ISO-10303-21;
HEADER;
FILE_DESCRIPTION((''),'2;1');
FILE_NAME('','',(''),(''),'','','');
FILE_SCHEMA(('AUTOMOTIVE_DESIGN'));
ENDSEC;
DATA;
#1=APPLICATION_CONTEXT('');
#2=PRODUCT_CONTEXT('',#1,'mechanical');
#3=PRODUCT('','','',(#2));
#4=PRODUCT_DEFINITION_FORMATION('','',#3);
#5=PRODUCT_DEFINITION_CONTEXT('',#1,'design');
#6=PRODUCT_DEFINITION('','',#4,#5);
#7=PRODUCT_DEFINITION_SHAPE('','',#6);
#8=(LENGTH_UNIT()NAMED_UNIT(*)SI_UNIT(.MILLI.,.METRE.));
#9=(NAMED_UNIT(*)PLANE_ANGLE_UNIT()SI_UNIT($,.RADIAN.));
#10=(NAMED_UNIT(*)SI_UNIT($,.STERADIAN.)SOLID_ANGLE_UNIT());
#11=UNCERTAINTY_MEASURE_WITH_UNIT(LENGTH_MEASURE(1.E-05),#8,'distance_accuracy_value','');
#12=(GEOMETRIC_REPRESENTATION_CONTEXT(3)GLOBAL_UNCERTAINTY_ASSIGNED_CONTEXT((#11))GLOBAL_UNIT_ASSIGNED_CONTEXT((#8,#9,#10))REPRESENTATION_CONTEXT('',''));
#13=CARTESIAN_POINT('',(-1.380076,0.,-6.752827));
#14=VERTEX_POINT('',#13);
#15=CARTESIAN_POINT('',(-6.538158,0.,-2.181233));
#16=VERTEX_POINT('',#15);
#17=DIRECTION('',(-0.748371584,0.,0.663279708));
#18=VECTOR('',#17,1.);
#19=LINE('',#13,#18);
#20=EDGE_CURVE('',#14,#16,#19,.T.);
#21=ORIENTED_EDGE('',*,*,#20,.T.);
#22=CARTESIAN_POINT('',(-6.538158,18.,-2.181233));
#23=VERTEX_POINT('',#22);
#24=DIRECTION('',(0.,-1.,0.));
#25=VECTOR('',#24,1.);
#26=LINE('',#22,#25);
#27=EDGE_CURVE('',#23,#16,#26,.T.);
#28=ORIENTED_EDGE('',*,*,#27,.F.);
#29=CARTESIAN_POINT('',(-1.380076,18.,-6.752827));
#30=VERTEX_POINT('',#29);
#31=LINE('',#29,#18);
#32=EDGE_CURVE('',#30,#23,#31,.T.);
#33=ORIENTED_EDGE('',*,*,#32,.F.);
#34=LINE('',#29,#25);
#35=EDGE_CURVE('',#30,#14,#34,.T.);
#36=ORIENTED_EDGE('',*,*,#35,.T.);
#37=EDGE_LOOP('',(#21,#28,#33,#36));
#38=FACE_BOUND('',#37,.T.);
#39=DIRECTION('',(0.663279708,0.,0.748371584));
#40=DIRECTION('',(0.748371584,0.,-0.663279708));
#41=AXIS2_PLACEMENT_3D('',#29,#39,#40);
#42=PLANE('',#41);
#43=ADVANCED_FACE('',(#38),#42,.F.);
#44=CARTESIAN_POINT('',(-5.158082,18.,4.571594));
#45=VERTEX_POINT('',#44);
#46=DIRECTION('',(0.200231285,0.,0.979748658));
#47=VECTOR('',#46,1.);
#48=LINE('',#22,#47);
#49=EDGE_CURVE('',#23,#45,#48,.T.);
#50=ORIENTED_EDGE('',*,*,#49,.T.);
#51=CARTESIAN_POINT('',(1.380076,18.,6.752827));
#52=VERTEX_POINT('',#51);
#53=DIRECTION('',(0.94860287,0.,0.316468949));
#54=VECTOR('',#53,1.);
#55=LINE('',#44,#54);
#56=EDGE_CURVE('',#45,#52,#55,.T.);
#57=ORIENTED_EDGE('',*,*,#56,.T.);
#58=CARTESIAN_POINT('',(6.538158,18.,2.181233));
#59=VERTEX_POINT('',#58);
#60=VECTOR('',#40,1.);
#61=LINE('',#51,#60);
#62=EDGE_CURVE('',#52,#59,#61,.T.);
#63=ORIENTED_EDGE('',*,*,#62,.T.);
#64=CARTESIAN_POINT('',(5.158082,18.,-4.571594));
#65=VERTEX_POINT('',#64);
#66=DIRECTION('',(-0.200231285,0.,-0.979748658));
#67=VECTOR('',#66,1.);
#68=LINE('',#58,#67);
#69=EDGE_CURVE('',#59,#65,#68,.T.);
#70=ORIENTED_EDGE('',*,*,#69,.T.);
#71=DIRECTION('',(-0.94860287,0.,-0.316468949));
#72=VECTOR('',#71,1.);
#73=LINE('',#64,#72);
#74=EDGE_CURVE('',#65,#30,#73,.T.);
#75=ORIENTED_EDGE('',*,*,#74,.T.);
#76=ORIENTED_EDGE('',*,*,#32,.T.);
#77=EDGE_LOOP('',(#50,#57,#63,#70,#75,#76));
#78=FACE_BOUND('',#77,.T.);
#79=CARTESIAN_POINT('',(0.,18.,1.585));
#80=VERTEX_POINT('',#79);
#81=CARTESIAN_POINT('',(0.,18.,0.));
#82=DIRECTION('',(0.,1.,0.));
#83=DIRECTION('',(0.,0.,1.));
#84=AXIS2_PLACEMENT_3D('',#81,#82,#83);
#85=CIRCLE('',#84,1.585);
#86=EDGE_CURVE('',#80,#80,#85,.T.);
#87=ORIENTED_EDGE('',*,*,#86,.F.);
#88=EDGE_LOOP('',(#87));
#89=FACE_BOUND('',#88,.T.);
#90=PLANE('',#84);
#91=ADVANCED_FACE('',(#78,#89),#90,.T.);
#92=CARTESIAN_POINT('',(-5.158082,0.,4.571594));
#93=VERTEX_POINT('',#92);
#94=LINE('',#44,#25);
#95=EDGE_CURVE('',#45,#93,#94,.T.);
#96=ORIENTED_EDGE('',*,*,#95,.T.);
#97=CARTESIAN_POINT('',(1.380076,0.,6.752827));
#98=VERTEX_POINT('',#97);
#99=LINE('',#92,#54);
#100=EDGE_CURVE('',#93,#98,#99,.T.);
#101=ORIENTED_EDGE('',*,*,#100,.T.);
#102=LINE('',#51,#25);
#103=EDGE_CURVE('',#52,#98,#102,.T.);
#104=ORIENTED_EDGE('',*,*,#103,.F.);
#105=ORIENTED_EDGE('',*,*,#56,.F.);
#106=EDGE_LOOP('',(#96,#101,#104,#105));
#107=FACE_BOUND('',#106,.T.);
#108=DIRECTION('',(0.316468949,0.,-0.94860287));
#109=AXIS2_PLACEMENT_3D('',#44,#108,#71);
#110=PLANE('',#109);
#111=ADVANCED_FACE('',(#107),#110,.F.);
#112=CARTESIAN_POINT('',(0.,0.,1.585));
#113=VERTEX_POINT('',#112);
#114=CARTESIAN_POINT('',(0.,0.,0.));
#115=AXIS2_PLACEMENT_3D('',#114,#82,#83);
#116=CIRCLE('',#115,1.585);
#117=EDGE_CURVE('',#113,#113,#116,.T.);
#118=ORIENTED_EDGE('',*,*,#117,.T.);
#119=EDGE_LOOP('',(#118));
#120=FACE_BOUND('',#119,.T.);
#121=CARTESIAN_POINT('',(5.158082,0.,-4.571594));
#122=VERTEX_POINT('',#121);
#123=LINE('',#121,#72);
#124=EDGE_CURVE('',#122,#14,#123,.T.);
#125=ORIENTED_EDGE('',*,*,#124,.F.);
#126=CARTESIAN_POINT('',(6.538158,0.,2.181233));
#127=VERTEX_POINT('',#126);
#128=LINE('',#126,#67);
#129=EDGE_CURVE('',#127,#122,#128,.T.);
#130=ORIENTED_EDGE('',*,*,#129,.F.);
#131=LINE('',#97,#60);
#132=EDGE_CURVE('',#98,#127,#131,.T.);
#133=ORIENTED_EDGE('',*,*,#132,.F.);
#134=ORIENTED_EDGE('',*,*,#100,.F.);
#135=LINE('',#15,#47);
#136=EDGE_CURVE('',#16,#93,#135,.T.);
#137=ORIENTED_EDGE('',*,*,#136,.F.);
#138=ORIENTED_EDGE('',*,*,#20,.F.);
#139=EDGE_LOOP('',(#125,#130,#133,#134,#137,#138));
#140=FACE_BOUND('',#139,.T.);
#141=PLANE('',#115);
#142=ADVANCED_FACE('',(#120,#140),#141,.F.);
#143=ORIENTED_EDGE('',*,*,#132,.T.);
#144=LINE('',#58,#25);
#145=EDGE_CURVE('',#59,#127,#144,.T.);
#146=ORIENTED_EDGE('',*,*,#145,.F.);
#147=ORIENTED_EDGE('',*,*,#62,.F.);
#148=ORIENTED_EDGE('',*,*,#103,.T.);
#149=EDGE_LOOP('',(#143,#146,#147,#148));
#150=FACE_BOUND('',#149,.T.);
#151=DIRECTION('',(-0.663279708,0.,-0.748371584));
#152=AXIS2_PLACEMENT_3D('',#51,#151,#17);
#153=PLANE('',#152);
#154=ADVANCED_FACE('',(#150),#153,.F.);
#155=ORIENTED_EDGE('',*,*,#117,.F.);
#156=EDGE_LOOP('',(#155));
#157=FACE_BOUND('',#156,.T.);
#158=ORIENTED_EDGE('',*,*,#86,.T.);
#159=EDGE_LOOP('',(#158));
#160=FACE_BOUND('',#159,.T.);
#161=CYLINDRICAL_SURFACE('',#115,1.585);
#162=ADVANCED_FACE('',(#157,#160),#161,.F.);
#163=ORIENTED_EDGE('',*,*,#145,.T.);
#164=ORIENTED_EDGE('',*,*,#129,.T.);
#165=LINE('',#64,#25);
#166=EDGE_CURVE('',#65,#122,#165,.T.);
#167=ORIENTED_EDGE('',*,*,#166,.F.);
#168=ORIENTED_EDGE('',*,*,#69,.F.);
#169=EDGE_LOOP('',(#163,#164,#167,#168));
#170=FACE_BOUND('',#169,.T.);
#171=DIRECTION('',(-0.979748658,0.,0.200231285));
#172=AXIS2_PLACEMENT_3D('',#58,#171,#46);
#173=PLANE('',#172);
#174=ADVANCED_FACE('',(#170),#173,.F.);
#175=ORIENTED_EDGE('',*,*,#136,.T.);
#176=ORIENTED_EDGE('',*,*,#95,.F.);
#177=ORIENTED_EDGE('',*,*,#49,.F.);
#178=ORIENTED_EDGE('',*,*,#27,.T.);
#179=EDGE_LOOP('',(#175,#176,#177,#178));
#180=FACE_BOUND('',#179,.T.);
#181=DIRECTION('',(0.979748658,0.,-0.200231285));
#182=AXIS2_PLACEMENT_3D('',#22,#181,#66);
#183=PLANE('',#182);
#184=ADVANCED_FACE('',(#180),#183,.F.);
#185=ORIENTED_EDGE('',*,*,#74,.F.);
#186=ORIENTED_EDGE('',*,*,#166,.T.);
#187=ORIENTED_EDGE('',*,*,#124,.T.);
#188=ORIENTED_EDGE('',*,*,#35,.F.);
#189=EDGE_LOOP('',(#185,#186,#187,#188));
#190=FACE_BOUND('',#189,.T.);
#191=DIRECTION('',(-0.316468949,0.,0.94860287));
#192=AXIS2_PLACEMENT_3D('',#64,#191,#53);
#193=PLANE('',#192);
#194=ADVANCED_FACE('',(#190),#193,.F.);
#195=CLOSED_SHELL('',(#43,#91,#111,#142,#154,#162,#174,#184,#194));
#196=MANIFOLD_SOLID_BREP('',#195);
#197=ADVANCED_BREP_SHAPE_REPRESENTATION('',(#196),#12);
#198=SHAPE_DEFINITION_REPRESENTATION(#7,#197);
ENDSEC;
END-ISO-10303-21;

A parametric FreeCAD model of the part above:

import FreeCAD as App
import Part
import Sketcher


def add_polygon(sketch, points):
    """Adds a closed chain of lines whose ends are joined by coincident constraints."""
    first, n = sketch.GeometryCount, len(points)
    for a, b in zip(points, points[1:] + points[:1]):
        sketch.addGeometry(Part.LineSegment(App.Vector(*a, 0), App.Vector(*b, 0)), False)
    for i in range(n):
        sketch.addConstraint(Sketcher.Constraint("Coincident", first + i, 2, first + (i + 1) % n, 1))

doc = App.newDocument("Part")
body = doc.addObject("PartDesign::Body", "Body")

# Sketch on XZ plane
sketch1 = body.newObject("Sketcher::SketchObject", "Sketch")
sketch1.AttachmentSupport = (doc.getObject("XZ_Plane"), [""])
sketch1.MapMode = "FlatFace"
add_polygon(sketch1, [(5, -5), (-1, -7), (-7, -2), (-5, 5), (1, 7), (7, 2)])  # lines 0-5
sketch1.addConstraint([
    Sketcher.Constraint("Symmetric", 0, 2, 3, 2, -1, 1),
    Sketcher.Constraint("Symmetric", 1, 2, 4, 2, -1, 1),
    Sketcher.Constraint("Symmetric", 2, 2, 5, 2, -1, 1),
    Sketcher.Constraint("Equal", 0, 1),
    Sketcher.Constraint("Equal", 1, 2),
    Sketcher.Constraint("DistanceX", 2, 2, -1, 1, 5.158082),
    Sketcher.Constraint("DistanceX", 1, 2, 0, 2, 5.158082),
    Sketcher.Constraint("DistanceY", 0, 2, 2, 2, 11.324421),
    Sketcher.Constraint("DistanceY", 1, 2, 3, 2, 8.93406),
])
pad1 = body.newObject("PartDesign::Pad", "Pad")
pad1.Profile = sketch1
pad1.Length = 18
pad1.Reversed = True

# Sketch on XZ plane
sketch2 = body.newObject("Sketcher::SketchObject", "Sketch001")
sketch2.AttachmentSupport = (doc.getObject("XZ_Plane"), [""])
sketch2.MapMode = "FlatFace"
sketch2.AttachmentOffset = App.Placement(App.Vector(0, 0, -18), App.Rotation())
sketch2.addGeometry(Part.Circle(App.Vector(0, 0, 0), App.Vector(0, 0, 1), 1.6), False)
sketch2.addConstraint([
    Sketcher.Constraint("Coincident", 0, 3, -1, 1),
    Sketcher.Constraint("Diameter", 0, 3.17),
])
pocket1 = body.newObject("PartDesign::Pocket", "Pocket")
pocket1.Profile = sketch2
pocket1.Type = "ThroughAll"
pocket1.Reversed = True

doc.recompute()
